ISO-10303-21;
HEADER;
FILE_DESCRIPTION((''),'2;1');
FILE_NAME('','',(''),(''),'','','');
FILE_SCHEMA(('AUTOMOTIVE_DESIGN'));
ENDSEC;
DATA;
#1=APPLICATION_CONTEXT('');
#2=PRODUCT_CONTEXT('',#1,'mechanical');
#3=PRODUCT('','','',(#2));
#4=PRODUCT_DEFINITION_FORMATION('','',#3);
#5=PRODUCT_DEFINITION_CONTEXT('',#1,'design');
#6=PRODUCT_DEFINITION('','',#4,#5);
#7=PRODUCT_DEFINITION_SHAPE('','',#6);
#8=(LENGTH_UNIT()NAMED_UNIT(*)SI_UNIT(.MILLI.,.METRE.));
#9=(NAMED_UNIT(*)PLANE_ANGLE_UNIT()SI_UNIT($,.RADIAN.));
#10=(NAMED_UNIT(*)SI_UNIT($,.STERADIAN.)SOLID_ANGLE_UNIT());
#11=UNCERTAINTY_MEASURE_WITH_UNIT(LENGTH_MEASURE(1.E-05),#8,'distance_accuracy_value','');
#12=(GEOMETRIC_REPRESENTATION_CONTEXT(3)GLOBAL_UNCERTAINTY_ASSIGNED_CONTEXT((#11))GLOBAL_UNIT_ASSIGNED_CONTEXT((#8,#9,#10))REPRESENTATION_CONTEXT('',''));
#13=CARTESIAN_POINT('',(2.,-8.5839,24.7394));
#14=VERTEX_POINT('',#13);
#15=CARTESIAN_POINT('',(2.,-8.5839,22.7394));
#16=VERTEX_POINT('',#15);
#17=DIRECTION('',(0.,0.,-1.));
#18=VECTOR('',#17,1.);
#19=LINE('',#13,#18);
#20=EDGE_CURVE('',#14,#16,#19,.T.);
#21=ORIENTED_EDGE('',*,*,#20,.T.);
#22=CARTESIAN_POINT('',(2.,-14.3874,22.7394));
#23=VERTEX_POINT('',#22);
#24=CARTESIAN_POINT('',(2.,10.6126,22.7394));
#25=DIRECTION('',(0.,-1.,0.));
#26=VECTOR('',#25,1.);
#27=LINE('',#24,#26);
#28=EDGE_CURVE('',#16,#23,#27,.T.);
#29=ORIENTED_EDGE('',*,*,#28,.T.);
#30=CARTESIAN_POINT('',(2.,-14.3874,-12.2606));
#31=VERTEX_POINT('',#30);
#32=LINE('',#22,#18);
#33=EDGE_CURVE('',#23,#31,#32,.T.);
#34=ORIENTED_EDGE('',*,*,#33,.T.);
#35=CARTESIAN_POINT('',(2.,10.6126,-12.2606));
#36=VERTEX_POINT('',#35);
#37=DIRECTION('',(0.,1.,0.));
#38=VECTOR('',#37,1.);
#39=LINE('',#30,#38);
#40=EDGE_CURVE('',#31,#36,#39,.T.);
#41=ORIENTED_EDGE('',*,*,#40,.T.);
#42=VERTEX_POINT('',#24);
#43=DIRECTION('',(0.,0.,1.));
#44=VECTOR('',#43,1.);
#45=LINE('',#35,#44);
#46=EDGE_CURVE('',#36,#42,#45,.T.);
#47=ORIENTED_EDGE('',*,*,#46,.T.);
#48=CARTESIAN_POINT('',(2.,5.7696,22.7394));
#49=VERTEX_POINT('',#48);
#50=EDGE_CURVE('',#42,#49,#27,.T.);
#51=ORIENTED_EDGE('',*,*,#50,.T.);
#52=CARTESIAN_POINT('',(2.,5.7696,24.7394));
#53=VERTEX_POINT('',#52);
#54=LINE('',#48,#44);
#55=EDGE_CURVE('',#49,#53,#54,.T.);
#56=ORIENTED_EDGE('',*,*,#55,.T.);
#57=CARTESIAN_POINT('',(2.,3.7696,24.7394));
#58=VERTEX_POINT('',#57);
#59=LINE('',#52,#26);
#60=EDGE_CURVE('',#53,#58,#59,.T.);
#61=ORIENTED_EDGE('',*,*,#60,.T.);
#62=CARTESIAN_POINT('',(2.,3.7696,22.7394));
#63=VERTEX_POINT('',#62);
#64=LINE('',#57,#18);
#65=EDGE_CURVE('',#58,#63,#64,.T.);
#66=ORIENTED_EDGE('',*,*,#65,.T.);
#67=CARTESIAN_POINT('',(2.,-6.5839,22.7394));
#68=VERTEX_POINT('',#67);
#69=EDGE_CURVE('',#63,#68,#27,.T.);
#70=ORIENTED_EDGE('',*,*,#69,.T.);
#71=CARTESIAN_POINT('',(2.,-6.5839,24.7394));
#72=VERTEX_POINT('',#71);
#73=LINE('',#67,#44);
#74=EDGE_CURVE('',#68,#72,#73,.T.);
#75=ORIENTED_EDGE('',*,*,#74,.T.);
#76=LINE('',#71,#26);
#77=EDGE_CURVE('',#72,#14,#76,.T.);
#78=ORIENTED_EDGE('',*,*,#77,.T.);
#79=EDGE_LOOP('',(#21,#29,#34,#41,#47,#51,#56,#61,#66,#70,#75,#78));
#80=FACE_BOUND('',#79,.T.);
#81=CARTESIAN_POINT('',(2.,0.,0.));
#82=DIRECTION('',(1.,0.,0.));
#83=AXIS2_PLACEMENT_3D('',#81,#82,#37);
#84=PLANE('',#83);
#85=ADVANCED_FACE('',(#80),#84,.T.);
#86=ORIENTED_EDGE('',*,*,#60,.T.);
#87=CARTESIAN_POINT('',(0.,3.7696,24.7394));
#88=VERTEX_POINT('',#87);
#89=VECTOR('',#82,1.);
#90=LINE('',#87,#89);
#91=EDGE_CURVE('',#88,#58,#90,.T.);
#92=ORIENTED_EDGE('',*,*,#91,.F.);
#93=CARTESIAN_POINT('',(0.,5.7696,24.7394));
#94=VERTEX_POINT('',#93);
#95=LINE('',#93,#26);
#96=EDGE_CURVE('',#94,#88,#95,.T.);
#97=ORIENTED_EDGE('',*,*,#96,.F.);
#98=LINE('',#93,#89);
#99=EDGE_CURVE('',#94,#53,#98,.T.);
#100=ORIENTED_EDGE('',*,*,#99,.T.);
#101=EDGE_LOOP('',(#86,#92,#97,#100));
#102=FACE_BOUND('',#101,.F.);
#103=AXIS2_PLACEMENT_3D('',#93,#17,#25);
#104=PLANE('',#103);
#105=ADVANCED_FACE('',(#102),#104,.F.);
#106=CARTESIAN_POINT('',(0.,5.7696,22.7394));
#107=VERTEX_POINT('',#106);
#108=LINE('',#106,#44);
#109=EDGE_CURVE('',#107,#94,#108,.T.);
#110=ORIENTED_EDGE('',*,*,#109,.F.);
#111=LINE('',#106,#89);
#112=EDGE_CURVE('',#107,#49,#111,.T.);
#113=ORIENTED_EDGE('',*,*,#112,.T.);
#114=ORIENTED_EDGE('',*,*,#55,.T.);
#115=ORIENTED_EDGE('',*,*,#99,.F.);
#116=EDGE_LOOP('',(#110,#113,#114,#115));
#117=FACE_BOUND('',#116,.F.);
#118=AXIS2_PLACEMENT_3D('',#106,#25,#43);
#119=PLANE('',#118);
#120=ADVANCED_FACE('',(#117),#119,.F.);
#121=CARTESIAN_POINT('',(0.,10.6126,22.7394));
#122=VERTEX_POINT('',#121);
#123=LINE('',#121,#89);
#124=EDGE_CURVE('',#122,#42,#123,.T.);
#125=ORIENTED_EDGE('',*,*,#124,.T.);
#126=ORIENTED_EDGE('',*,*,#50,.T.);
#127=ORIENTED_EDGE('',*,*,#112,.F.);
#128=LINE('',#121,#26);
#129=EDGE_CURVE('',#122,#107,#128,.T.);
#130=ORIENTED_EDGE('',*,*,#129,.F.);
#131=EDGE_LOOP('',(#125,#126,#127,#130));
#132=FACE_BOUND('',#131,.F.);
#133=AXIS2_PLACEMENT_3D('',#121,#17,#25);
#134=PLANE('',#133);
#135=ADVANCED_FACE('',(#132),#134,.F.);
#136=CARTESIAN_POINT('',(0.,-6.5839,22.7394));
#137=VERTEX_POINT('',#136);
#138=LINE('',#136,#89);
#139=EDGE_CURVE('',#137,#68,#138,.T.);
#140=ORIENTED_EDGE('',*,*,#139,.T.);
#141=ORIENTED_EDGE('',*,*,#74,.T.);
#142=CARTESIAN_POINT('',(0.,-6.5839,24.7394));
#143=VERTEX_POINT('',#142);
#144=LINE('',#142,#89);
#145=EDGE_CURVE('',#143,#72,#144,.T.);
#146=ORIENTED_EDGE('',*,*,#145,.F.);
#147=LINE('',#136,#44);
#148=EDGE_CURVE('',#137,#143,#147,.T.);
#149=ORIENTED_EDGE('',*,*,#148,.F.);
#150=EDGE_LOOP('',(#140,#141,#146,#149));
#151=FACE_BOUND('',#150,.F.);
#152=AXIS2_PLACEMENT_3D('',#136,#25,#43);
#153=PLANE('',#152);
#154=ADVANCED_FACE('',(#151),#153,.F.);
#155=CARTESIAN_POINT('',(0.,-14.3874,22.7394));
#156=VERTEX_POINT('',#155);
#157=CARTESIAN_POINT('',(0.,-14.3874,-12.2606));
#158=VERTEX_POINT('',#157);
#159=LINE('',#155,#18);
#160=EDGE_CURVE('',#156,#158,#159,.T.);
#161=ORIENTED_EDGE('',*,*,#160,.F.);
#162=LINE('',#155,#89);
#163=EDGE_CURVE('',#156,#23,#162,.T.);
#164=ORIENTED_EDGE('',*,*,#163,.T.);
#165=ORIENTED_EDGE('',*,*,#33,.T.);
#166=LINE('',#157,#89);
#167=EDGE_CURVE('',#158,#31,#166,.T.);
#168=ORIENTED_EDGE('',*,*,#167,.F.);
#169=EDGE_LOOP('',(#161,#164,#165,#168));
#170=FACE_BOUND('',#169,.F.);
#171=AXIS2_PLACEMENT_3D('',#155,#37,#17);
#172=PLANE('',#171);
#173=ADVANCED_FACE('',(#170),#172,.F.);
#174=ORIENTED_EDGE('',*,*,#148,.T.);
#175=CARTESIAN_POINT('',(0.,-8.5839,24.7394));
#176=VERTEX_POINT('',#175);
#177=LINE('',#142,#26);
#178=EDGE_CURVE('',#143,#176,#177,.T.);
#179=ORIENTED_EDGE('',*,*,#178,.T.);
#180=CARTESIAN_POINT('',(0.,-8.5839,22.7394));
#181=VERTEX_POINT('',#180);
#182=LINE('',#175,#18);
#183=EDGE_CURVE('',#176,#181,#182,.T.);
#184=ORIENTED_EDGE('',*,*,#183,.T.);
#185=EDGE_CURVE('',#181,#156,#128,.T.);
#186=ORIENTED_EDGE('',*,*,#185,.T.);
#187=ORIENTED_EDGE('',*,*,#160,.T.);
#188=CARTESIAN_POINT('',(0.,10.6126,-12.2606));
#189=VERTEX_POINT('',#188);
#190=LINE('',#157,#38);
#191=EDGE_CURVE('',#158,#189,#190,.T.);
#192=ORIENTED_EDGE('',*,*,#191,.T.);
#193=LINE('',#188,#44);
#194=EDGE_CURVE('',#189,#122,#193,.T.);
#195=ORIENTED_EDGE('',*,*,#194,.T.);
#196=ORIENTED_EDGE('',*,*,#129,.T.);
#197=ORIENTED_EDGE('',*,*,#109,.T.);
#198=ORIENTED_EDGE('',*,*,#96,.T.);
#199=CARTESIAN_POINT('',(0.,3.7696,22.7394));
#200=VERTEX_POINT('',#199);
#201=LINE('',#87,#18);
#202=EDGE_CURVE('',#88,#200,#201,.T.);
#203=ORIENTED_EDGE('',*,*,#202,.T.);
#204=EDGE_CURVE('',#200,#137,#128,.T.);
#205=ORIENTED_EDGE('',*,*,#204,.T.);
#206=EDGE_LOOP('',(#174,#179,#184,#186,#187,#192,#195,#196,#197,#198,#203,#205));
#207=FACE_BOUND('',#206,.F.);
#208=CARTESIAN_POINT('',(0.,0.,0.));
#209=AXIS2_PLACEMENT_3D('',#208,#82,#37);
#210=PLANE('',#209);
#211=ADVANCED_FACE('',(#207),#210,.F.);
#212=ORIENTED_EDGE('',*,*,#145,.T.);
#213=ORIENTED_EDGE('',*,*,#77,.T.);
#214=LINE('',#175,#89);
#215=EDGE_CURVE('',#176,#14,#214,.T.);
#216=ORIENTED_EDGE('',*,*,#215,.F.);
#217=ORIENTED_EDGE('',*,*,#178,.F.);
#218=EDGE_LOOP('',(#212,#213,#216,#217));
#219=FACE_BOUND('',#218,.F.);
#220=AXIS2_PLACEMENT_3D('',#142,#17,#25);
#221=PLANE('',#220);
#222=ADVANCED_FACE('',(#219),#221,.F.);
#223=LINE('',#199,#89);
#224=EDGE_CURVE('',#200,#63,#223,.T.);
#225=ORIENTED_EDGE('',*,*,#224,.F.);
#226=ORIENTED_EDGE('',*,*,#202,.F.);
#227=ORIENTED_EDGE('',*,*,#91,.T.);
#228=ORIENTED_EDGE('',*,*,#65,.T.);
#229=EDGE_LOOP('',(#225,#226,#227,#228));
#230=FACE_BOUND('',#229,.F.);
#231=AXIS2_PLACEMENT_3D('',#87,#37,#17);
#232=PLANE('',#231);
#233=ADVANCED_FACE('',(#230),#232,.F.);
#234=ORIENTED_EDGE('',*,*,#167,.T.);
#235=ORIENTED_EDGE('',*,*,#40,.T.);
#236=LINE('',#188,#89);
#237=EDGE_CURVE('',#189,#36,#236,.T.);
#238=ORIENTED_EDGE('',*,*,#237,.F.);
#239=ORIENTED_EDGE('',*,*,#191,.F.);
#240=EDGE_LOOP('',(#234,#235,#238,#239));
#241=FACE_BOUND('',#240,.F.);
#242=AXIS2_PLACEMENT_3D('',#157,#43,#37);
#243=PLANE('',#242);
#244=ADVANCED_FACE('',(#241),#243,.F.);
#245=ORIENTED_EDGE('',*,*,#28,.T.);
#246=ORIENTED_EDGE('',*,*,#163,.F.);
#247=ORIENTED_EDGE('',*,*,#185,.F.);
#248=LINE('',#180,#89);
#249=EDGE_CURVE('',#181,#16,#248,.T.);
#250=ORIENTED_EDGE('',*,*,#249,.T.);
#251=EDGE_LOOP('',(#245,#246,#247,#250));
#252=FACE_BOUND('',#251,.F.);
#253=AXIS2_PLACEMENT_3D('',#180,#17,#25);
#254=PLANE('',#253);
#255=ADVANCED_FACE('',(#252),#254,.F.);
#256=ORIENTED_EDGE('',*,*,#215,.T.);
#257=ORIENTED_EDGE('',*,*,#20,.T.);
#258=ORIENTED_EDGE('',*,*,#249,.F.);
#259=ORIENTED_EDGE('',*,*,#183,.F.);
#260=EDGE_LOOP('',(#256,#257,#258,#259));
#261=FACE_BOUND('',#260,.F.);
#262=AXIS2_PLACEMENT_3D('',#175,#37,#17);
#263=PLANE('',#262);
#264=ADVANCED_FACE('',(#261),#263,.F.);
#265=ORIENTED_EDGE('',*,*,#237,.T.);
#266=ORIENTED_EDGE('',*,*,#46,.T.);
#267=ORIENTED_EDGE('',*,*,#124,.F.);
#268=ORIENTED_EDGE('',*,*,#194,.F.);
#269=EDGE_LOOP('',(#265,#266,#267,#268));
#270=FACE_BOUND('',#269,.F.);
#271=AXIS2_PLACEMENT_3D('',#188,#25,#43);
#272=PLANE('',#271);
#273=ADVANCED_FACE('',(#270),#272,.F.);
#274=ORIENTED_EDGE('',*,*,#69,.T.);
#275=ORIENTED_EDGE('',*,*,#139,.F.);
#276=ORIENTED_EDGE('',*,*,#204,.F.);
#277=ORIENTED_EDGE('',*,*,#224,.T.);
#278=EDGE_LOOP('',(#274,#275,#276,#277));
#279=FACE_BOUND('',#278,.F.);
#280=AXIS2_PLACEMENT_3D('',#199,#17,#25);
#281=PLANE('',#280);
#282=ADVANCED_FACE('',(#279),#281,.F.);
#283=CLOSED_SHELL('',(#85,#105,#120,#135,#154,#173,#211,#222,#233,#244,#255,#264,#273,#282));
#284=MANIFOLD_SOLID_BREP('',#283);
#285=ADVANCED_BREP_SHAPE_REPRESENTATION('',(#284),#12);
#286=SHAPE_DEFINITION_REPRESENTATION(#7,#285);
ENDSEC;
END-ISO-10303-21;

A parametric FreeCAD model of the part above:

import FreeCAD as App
import Part
import Sketcher
Q = App.Units.Quantity

doc = App.newDocument("Part")
body = doc.addObject("PartDesign::Body", "Body")

# Sketch on YZ plane
sketch1 = doc.addObject("Sketcher::SketchObject", "Sketch")
body.addObject(sketch1)
sketch1.AttachmentSupport = (doc.YZ_Plane, [""])
sketch1.MapMode = "FlatFace"
sketch1.addGeometry(Part.LineSegment(App.Vector(10.6, -12.3, 0), App.Vector(10.6, 22.7, 0)), False)
sketch1.addGeometry(Part.LineSegment(App.Vector(10.6, 22.7, 0), App.Vector(5.8, 22.7, 0)), False)
sketch1.addGeometry(Part.LineSegment(App.Vector(5.8, 22.7, 0), App.Vector(5.8, 24.7, 0)), False)
sketch1.addGeometry(Part.LineSegment(App.Vector(5.8, 24.7, 0), App.Vector(3.8, 24.7, 0)), False)
sketch1.addGeometry(Part.LineSegment(App.Vector(3.8, 24.7, 0), App.Vector(3.8, 22.7, 0)), False)
sketch1.addGeometry(Part.LineSegment(App.Vector(3.8, 22.7, 0), App.Vector(-6.6, 22.7, 0)), False)
sketch1.addGeometry(Part.LineSegment(App.Vector(-6.6, 22.7, 0), App.Vector(-6.6, 24.7, 0)), False)
sketch1.addGeometry(Part.LineSegment(App.Vector(-6.6, 24.7, 0), App.Vector(-8.6, 24.7, 0)), False)
sketch1.addGeometry(Part.LineSegment(App.Vector(-8.6, 24.7, 0), App.Vector(-8.6, 22.7, 0)), False)
sketch1.addGeometry(Part.LineSegment(App.Vector(-8.6, 22.7, 0), App.Vector(-14.4, 22.7, 0)), False)
sketch1.addGeometry(Part.LineSegment(App.Vector(-14.4, 22.7, 0), App.Vector(-14.4, -12.3, 0)), False)
sketch1.addGeometry(Part.LineSegment(App.Vector(-14.4, -12.3, 0), App.Vector(10.6, -12.3, 0)), False)
sketch1.addConstraint(Sketcher.Constraint("Coincident", 0, 2, 1, 1))
sketch1.addConstraint(Sketcher.Constraint("Coincident", 1, 2, 2, 1))
sketch1.addConstraint(Sketcher.Constraint("Coincident", 2, 2, 3, 1))
sketch1.addConstraint(Sketcher.Constraint("Coincident", 3, 2, 4, 1))
sketch1.addConstraint(Sketcher.Constraint("Coincident", 4, 2, 5, 1))
sketch1.addConstraint(Sketcher.Constraint("Coincident", 5, 2, 6, 1))
sketch1.addConstraint(Sketcher.Constraint("Coincident", 6, 2, 7, 1))
sketch1.addConstraint(Sketcher.Constraint("Coincident", 7, 2, 8, 1))
sketch1.addConstraint(Sketcher.Constraint("Coincident", 8, 2, 9, 1))
sketch1.addConstraint(Sketcher.Constraint("Coincident", 9, 2, 10, 1))
sketch1.addConstraint(Sketcher.Constraint("Coincident", 10, 2, 11, 1))
sketch1.addConstraint(Sketcher.Constraint("Coincident", 11, 2, 0, 1))
sketch1.addConstraint(Sketcher.Constraint("Vertical", 0))
sketch1.addConstraint(Sketcher.Constraint("Horizontal", 1))
sketch1.addConstraint(Sketcher.Constraint("Vertical", 2))
sketch1.addConstraint(Sketcher.Constraint("Horizontal", 3))
sketch1.addConstraint(Sketcher.Constraint("Vertical", 4))
sketch1.addConstraint(Sketcher.Constraint("Horizontal", 5))
sketch1.addConstraint(Sketcher.Constraint("Vertical", 6))
sketch1.addConstraint(Sketcher.Constraint("Horizontal", 7))
sketch1.addConstraint(Sketcher.Constraint("Vertical", 8))
sketch1.addConstraint(Sketcher.Constraint("Horizontal", 9))
sketch1.addConstraint(Sketcher.Constraint("Vertical", 10))
sketch1.addConstraint(Sketcher.Constraint("Horizontal", 11))
sketch1.addConstraint(Sketcher.Constraint("Horizontal", 1, 2, 4, 2))
sketch1.addConstraint(Sketcher.Constraint("Horizontal", 3, 2, 6, 2))
sketch1.addConstraint(Sketcher.Constraint("Horizontal", 5, 2, 8, 2))
sketch1.addConstraint(Sketcher.Constraint("Equal", 3, 7))
sketch1.addConstraint(Sketcher.Constraint("Equal", 7, 2))
sketch1.addConstraint(Sketcher.Constraint("DistanceX", 3, 2, 3, 1, Q("2 mm")))
sketch1.addConstraint(Sketcher.Constraint("DistanceX", 11, 1, 11, 2, Q("25 mm")))
sketch1.addConstraint(Sketcher.Constraint("DistanceY", 0, 1, 0, 2, Q("35 mm")))
sketch1.addConstraint(Sketcher.Constraint("DistanceX", 1, 2, 1, 1, Q("4.843 mm")))
sketch1.addConstraint(Sketcher.Constraint("DistanceX", 5, 2, 5, 1, Q("10.3535 mm")))
sketch1.addConstraint(Sketcher.Constraint("DistanceX", 5, 2, -1, 1, Q("6.584 mm")))
sketch1.addConstraint(Sketcher.Constraint("DistanceY", -1, 1, 0, 2, Q("22.7394 mm")))
pad1 = doc.addObject("PartDesign::Pad", "Pad")
body.addObject(pad1)
pad1.Profile = sketch1
pad1.Length = 2

doc.recompute()
